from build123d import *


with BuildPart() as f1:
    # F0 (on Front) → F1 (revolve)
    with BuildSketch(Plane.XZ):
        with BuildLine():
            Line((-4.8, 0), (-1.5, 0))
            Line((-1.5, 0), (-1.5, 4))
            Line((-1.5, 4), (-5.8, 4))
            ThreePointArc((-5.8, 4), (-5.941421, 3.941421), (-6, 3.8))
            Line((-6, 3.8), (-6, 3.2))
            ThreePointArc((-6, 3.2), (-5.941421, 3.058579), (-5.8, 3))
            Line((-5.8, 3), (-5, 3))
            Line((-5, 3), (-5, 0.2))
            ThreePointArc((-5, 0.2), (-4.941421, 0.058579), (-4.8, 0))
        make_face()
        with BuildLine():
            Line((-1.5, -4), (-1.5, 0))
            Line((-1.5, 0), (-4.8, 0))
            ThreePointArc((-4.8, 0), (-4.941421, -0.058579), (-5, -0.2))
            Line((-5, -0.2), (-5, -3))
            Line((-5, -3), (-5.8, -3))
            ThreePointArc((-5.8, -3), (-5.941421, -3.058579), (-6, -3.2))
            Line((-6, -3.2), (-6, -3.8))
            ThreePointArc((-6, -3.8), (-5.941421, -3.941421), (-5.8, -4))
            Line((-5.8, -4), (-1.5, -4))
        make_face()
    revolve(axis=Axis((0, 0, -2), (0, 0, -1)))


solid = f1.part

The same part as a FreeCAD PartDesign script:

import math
import FreeCAD as App
import Part
import Sketcher

V = App.Vector

doc = App.newDocument("Part")
body = doc.addObject("PartDesign::Body", "Body")

# Sketch on XZ plane
sketch1 = body.newObject("Sketcher::SketchObject", "Sketch")
sketch1.AttachmentSupport = (doc.getObject("XZ_Plane"), [""])
sketch1.MapMode = "FlatFace"
sketch1.addGeometry([
    Part.LineSegment(V(-1.5, 4, 0), V(-5.8, 4, 0)),  # 0
    Part.ArcOfCircle(Part.Circle(V(-5.8, 3.8, 0), V(0, 0, 1), 0.2), math.radians(90), math.radians(180)),  # 1
    Part.LineSegment(V(-6, 3.8, 0), V(-6, 3.2, 0)),  # 2
    Part.ArcOfCircle(Part.Circle(V(-5.8, 3.2, 0), V(0, 0, 1), 0.2), math.radians(-180), math.radians(-90)),  # 3
    Part.LineSegment(V(-5.8, 3, 0), V(-5, 3, 0)),  # 4
    Part.LineSegment(V(-5, 3, 0), V(-5, 0.2, 0)),  # 5
    Part.ArcOfCircle(Part.Circle(V(-4.8, 0.2, 0), V(0, 0, 1), 0.2), math.radians(-180), math.radians(-90)),  # 6
    Part.ArcOfCircle(Part.Circle(V(-4.8, -0.2, 0), V(0, 0, 1), 0.2), math.radians(90), math.radians(180)),  # 7
    Part.LineSegment(V(-5, -0.2, 0), V(-5, -3, 0)),  # 8
    Part.LineSegment(V(-5, -3, 0), V(-5.8, -3, 0)),  # 9
    Part.ArcOfCircle(Part.Circle(V(-5.8, -3.2, 0), V(0, 0, 1), 0.2), math.radians(90), math.radians(180)),  # 10
    Part.LineSegment(V(-6, -3.2, 0), V(-6, -3.8, 0)),  # 11
    Part.ArcOfCircle(Part.Circle(V(-5.8, -3.8, 0), V(0, 0, 1), 0.2), math.radians(-180), math.radians(-90)),  # 12
    Part.LineSegment(V(-5.8, -4, 0), V(-1.5, -4, 0)),  # 13
    Part.LineSegment(V(-1.5, -4, 0), V(-1.5, 4, 0)),  # 14
], False)
sketch1.addConstraint([
    Sketcher.Constraint("Coincident", 0, 2, 1, 1),
    Sketcher.Constraint("Coincident", 1, 2, 2, 1),
    Sketcher.Constraint("Coincident", 2, 2, 3, 1),
    Sketcher.Constraint("Coincident", 3, 2, 4, 1),
    Sketcher.Constraint("Coincident", 4, 2, 5, 1),
    Sketcher.Constraint("Coincident", 5, 2, 6, 1),
    Sketcher.Constraint("Coincident", 6, 2, 7, 1),
    Sketcher.Constraint("Coincident", 7, 2, 8, 1),
    Sketcher.Constraint("Coincident", 8, 2, 9, 1),
    Sketcher.Constraint("Coincident", 9, 2, 10, 1),
    Sketcher.Constraint("Coincident", 10, 2, 11, 1),
    Sketcher.Constraint("Coincident", 11, 2, 12, 1),
    Sketcher.Constraint("Coincident", 12, 2, 13, 1),
    Sketcher.Constraint("Coincident", 13, 2, 14, 1),
    Sketcher.Constraint("Coincident", 14, 2, 0, 1),
    Sketcher.Constraint("Horizontal", 0),
    Sketcher.Constraint("Vertical", 2),
    Sketcher.Constraint("Horizontal", 4),
    Sketcher.Constraint("Vertical", 5),
    Sketcher.Constraint("Vertical", 8),
    Sketcher.Constraint("Horizontal", 9),
    Sketcher.Constraint("Vertical", 11),
    Sketcher.Constraint("Horizontal", 13),
    Sketcher.Constraint("Vertical", 14),
    Sketcher.Constraint("Equal", 1, 3),
    Sketcher.Constraint("Equal", 3, 6),
    Sketcher.Constraint("Equal", 6, 7),
    Sketcher.Constraint("Equal", 7, 10),
    Sketcher.Constraint("Equal", 10, 12),
    Sketcher.Constraint("Symmetric", 6, 3, 7, 3, -1),
    Sketcher.Constraint("Symmetric", 3, 3, 10, 3, -1),
    Sketcher.Constraint("Symmetric", 0, 2, 12, 2, -1),
    Sketcher.Constraint("Horizontal", 3, 3, 2, 2),
    Sketcher.Constraint("Horizontal", 6, 3, 5, 2),
    Sketcher.Constraint("Horizontal", 12, 3, 11, 2),
    Sketcher.Constraint("Vertical", 12, 3, 0, 2),
    Sketcher.Constraint("Vertical", 0, 2, 3, 2),
    Sketcher.Constraint("Vertical", 7, 3, 6, 2),
    Sketcher.Constraint("Vertical", 3, 2, 9, 2),
    Sketcher.Constraint("Equal", 5, 8),
    Sketcher.Constraint("Equal", 2, 11),
    Sketcher.Constraint("Radius", 1, 0.200001),
    Sketcher.Constraint("DistanceY", 14, 1, 14, 2, 8.0),
    Sketcher.Constraint("DistanceX", 0, 2, 0, 1, 4.3),
    Sketcher.Constraint("DistanceX", 4, 1, 4, 2, 0.8),
    Sketcher.Constraint("DistanceY", 2, 2, 2, 1, 0.6),
    Sketcher.Constraint("DistanceY", 5, 2, 5, 1, 2.8),
    Sketcher.Constraint("DistanceX", 1, 2, -1, 1, 6.0),
])
revolution = body.newObject("PartDesign::Revolution", "Revolution")
revolution.Profile = sketch1
revolution.ReferenceAxis = (sketch1, ["V_Axis"])
revolution.Angle = 360

doc.recompute()
